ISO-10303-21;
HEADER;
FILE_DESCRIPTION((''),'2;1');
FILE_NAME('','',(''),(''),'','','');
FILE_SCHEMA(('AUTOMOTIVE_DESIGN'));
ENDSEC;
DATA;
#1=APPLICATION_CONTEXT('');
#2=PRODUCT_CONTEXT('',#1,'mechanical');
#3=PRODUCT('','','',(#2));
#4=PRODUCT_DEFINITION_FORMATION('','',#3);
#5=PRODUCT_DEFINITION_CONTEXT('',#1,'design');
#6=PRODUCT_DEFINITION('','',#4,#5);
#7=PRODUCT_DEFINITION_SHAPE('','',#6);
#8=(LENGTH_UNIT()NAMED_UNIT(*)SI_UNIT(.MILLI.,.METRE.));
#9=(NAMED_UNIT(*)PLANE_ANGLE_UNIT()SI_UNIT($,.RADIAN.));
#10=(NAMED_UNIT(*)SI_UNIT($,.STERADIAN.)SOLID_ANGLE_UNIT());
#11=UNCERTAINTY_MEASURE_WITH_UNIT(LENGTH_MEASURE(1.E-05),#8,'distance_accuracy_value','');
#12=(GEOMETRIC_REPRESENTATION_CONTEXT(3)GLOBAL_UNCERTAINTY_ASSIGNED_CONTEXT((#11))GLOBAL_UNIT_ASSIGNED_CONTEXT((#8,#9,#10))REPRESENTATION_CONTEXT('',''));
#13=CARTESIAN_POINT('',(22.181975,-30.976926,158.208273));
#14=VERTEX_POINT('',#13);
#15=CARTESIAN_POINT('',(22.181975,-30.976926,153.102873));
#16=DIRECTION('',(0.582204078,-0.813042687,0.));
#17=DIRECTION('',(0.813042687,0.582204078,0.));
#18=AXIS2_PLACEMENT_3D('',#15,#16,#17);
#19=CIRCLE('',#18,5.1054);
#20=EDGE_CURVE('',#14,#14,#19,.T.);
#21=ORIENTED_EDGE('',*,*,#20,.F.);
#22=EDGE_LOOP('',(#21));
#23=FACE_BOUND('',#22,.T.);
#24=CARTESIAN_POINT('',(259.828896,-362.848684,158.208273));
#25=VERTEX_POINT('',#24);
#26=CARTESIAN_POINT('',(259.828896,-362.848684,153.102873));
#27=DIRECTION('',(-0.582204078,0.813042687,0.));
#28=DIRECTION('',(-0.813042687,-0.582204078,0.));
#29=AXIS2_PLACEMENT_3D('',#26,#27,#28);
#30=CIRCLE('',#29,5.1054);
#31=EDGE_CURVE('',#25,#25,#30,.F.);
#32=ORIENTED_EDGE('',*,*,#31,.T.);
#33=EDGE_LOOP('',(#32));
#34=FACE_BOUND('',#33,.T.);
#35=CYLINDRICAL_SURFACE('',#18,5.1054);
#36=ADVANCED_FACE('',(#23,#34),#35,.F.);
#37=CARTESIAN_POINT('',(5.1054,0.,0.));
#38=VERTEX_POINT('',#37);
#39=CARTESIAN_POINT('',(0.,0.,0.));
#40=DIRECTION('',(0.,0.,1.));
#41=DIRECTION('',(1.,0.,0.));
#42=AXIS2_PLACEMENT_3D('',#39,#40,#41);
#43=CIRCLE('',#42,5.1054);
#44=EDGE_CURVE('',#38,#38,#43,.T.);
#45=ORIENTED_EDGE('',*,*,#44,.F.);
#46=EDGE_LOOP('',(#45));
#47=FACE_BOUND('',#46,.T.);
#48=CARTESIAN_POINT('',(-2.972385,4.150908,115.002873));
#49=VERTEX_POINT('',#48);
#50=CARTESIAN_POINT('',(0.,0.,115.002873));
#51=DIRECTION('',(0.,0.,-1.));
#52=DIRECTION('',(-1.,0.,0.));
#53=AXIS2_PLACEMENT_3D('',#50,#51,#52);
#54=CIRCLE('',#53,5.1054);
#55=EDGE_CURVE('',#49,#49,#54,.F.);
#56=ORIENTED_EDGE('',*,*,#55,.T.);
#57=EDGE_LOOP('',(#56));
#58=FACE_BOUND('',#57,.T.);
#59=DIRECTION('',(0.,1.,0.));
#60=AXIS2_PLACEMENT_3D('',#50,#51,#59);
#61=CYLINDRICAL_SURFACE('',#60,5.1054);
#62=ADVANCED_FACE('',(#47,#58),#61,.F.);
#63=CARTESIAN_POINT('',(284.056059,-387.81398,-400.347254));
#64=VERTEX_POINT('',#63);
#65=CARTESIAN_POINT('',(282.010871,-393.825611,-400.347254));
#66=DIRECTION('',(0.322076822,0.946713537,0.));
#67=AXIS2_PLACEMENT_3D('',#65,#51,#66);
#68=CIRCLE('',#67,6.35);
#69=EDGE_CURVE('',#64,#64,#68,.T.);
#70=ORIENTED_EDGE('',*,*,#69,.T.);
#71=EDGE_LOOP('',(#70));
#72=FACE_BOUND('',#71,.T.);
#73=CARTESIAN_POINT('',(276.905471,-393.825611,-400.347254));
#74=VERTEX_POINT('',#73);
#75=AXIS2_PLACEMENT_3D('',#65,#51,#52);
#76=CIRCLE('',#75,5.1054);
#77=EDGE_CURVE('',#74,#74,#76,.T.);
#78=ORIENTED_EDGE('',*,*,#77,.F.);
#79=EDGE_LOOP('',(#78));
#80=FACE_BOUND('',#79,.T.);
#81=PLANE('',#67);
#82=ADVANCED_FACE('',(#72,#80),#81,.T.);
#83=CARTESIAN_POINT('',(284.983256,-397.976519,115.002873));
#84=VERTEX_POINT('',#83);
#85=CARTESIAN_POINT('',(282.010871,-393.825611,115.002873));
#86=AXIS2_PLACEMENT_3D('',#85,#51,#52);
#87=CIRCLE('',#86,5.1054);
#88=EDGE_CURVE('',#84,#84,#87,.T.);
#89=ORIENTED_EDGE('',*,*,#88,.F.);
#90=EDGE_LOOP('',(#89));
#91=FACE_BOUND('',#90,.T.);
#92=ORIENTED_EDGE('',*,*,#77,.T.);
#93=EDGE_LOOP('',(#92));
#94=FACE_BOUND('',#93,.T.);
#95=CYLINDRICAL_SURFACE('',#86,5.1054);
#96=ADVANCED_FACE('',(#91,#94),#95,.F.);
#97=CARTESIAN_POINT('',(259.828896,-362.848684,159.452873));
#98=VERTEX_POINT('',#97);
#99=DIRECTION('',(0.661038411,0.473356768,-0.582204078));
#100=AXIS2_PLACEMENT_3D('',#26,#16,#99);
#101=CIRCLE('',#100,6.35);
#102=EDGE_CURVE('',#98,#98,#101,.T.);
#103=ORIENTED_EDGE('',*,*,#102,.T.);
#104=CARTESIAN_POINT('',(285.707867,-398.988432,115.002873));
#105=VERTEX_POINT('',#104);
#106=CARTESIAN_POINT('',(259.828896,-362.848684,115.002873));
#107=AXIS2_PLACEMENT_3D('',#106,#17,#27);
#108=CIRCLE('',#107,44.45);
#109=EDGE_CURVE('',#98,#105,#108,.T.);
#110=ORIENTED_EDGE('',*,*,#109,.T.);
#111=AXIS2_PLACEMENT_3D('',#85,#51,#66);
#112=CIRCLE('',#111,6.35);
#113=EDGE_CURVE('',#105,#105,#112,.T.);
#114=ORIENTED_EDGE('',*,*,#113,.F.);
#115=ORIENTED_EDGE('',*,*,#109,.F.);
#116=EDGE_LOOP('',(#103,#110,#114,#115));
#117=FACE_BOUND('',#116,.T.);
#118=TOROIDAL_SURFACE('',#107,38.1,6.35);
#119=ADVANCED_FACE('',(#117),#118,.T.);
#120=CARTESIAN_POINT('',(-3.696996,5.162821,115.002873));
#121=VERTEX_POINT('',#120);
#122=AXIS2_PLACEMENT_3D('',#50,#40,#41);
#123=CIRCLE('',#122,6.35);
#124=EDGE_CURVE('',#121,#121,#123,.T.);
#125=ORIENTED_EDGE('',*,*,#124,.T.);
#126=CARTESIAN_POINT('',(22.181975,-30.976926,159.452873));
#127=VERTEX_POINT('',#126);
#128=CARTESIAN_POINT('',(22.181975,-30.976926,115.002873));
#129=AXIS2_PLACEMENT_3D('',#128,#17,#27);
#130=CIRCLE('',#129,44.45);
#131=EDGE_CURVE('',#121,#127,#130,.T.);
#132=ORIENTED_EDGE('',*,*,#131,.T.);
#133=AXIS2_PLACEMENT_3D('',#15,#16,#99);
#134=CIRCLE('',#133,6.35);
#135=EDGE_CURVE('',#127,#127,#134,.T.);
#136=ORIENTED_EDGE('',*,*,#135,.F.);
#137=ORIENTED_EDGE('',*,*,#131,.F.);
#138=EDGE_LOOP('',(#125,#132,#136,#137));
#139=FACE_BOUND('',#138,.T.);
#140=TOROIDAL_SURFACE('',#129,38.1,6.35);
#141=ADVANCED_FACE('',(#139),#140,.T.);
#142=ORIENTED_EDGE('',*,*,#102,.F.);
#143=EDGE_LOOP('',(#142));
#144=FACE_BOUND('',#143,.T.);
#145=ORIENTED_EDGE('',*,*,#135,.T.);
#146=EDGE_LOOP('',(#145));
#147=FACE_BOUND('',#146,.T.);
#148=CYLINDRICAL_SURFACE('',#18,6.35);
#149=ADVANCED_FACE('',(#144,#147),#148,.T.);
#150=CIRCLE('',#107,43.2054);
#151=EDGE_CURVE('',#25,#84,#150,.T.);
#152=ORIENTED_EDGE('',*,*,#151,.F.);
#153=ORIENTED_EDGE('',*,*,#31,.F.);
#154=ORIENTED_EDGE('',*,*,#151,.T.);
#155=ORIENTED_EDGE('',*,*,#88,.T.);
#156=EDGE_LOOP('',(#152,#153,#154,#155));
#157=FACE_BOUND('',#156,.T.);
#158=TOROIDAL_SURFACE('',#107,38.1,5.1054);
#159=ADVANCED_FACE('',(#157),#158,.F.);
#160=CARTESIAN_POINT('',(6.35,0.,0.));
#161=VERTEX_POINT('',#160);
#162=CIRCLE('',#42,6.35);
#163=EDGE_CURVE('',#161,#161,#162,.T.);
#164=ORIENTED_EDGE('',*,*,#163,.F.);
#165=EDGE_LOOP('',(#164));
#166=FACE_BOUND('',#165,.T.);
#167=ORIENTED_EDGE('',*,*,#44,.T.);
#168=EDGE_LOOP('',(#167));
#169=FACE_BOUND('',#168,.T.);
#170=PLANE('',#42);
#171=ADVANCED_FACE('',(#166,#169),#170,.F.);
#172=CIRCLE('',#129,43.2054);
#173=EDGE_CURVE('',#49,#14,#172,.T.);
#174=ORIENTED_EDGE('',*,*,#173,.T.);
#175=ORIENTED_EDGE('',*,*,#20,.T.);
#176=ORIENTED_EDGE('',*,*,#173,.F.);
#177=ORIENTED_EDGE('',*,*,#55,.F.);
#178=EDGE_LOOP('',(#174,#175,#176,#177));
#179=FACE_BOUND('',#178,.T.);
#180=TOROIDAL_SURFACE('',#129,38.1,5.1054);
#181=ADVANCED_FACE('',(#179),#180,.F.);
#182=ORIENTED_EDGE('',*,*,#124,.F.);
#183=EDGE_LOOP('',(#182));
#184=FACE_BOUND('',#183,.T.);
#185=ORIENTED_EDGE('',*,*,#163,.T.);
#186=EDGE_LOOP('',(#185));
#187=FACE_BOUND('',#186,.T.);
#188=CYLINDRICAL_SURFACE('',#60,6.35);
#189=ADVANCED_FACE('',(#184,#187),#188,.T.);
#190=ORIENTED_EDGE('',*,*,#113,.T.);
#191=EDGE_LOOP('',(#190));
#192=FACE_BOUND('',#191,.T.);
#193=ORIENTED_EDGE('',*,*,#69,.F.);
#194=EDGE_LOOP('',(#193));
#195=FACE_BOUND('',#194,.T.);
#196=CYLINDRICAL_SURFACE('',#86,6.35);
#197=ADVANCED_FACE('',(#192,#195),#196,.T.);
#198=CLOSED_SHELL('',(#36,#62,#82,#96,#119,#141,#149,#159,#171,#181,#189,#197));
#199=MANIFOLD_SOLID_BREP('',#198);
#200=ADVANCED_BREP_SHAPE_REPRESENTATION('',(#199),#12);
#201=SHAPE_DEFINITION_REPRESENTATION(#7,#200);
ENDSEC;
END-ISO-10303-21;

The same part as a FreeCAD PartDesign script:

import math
import FreeCAD as App
import Part
import Sketcher
Q = App.Units.Quantity

doc = App.newDocument("Part")
body = doc.addObject("PartDesign::Body", "Body")

# Sketch on XY plane
sketch1 = body.newObject("Sketcher::SketchObject", "Sketch")
sketch1.AttachmentSupport = (doc.getObject("XY_Plane"), [""])
sketch1.MapMode = "FlatFace"
sketch1.addGeometry([
    Part.Circle(App.Vector(0, 0, 0), App.Vector(0, 0, 1), 6),
    Part.Circle(App.Vector(0, 0, 0), App.Vector(0, 0, 1), 5),
], False)
sketch1.addConstraint([
    Sketcher.Constraint("Coincident", 0, 3, -1, 1),
    Sketcher.Constraint("Coincident", 1, 3, -1, 1),
    Sketcher.Constraint("Diameter", 0, Q("0.5 in")),
    Sketcher.Constraint("Diameter", 1, Q("0.402 in")),
])

# Sketch on an angled plane
sketch2 = body.newObject("Sketcher::SketchObject", "Sketch001")
sketch2.Placement = App.Placement(App.Vector(0, 0, 0), App.Rotation(App.Vector(-0.582204078, 0.813042687, 0), App.Vector(0, 0, 0.999999999), App.Vector(0.813042687, 0.582204078, 0), "ZXY"))
sketch2.addGeometry([
    Part.LineSegment(App.Vector(0, 0, 0), App.Vector(0, 115, 0)),  # 0
    Part.ArcOfCircle(Part.Circle(App.Vector(-38, 115, 0), App.Vector(0, 0, 1), 38), math.radians(0), math.radians(90)),  # 1
    Part.LineSegment(App.Vector(-38, 153, 0), App.Vector(-446, 153, 0)),  # 2
    Part.ArcOfCircle(Part.Circle(App.Vector(-446, 115, 0), App.Vector(0, 0, 1), 38), math.radians(90), math.radians(180)),  # 3
    Part.LineSegment(App.Vector(-484, 115, 0), App.Vector(-484, -400, 0)),  # 4
], False)
sketch2.addConstraint([
    Sketcher.Constraint("Tangent", 0, 2, 1, 1),
    Sketcher.Constraint("Tangent", 1, 2, 2, 1),
    Sketcher.Constraint("Tangent", 2, 2, 3, 1),
    Sketcher.Constraint("Tangent", 3, 2, 4, 1),
    Sketcher.Constraint("Vertical", 0),
    Sketcher.Constraint("Horizontal", 2),
    Sketcher.Constraint("Vertical", 4),
    Sketcher.Constraint("Coincident", 0, 1, -1, 1),
    Sketcher.Constraint("Equal", 1, 3),
    Sketcher.Constraint("Radius", 1, Q("1.5 in")),
    Sketcher.Constraint("DistanceX", 2, 2, 2, 1, Q("408.184912 mm")),
    Sketcher.Constraint("DistanceY", 0, 1, 0, 2, Q("115.002872 mm")),
    Sketcher.Constraint("DistanceY", 4, 2, 4, 1, Q("515.350126 mm")),
])
doc.recompute()

additivepipe = body.newObject("PartDesign::AdditivePipe", "AdditivePipe")
additivepipe.Profile = sketch1
additivepipe.Spine = (sketch2, ["Edge1", "Edge2", "Edge3", "Edge4", "Edge5"])

doc.recompute()
